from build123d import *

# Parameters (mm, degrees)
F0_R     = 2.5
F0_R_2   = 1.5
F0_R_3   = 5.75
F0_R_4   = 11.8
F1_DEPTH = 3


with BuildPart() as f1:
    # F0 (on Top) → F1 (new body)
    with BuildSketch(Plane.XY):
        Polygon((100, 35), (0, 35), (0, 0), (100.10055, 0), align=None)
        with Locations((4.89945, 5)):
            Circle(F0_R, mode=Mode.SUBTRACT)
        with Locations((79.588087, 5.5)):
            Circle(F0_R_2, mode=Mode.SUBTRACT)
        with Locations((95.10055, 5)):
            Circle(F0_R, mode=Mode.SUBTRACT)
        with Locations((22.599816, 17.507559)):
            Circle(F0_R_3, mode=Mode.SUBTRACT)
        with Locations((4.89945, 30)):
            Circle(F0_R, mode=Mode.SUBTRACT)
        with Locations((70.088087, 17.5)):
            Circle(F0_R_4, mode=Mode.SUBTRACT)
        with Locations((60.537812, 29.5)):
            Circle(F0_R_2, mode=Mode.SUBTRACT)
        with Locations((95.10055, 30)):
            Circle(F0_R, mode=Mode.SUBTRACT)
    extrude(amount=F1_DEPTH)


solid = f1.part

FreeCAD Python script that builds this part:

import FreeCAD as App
import Part
import Sketcher

V = App.Vector

doc = App.newDocument("Part")
body = doc.addObject("PartDesign::Body", "Body")

# Sketch on XY plane
sketch1 = body.newObject("Sketcher::SketchObject", "Sketch")
sketch1.AttachmentSupport = (doc.getObject("XY_Plane"), [""])
sketch1.MapMode = "FlatFace"
sketch1.addGeometry(Part.LineSegment(V(100, 35, 0), V(0, 35, 0)), False)
sketch1.addGeometry(Part.LineSegment(V(0, 35, 0), V(0, 0, 0)), False)
sketch1.addGeometry(Part.LineSegment(V(0, 0, 0), V(100.1, 0, 0)), False)
sketch1.addGeometry(Part.LineSegment(V(100.1, 0, 0), V(100, 35, 0)), False)
sketch1.addGeometry(Part.Circle(V(4.9, 5, 0), V(0, 0, 1), 2.5), False)
sketch1.addGeometry(Part.Circle(V(79.6, 5.5, 0), V(0, 0, 1), 1.5), False)
sketch1.addGeometry(Part.Circle(V(95.1, 5, 0), V(0, 0, 1), 2.5), False)
sketch1.addGeometry(Part.Circle(V(22.6, 17.5, 0), V(0, 0, 1), 5.8), False)
sketch1.addGeometry(Part.Circle(V(4.9, 30, 0), V(0, 0, 1), 2.5), False)
sketch1.addGeometry(Part.Circle(V(70.1, 17.5, 0), V(0, 0, 1), 11.8), False)
sketch1.addGeometry(Part.Circle(V(60.5, 29.5, 0), V(0, 0, 1), 1.5), False)
sketch1.addGeometry(Part.Circle(V(95.1, 30, 0), V(0, 0, 1), 2.5), False)
sketch1.addConstraint(Sketcher.Constraint("Coincident", 0, 2, 1, 1))
sketch1.addConstraint(Sketcher.Constraint("Coincident", 1, 2, 2, 1))
sketch1.addConstraint(Sketcher.Constraint("Coincident", 2, 2, 3, 1))
sketch1.addConstraint(Sketcher.Constraint("Coincident", 3, 2, 0, 1))
sketch1.addConstraint(Sketcher.Constraint("Horizontal", 0))
sketch1.addConstraint(Sketcher.Constraint("Vertical", 1))
sketch1.addConstraint(Sketcher.Constraint("Horizontal", 2))
sketch1.addConstraint(Sketcher.Constraint("Coincident", 1, 2, -1, 1))
sketch1.addConstraint(Sketcher.Constraint("Equal", 4, 6))
sketch1.addConstraint(Sketcher.Constraint("Equal", 6, 8))
sketch1.addConstraint(Sketcher.Constraint("Equal", 5, 10))
sketch1.addConstraint(Sketcher.Constraint("Equal", 8, 11))
sketch1.addConstraint(Sketcher.Constraint("Horizontal", 4, 3, 6, 3))
sketch1.addConstraint(Sketcher.Constraint("Horizontal", 8, 3, 11, 3))
sketch1.addConstraint(Sketcher.Constraint("Vertical", 4, 3, 8, 3))
sketch1.addConstraint(Sketcher.Constraint("Vertical", 6, 3, 11, 3))
sketch1.addConstraint(Sketcher.Constraint("Diameter", 4, 5.0))
sketch1.addConstraint(Sketcher.Constraint("Diameter", 5, 3.0))
sketch1.addConstraint(Sketcher.Constraint("Diameter", 7, 11.5))
sketch1.addConstraint(Sketcher.Constraint("Diameter", 9, 23.6))
sketch1.addConstraint(Sketcher.Constraint("DistanceX", 0, 2, 0, 1, 100.0))
sketch1.addConstraint(Sketcher.Constraint("DistanceY", 1, 2, 1, 1, 35.0))
sketch1.addConstraint(Sketcher.Constraint("DistanceY", -1, 1, 4, 3, 5.0))
sketch1.addConstraint(Sketcher.Constraint("DistanceY", -1, 1, 8, 3, 30.0))
sketch1.addConstraint(Sketcher.Constraint("DistanceY", 5, 3, 9, 3, 12.0))
sketch1.addConstraint(Sketcher.Constraint("DistanceY", 9, 3, 10, 3, 12.0))
sketch1.addConstraint(Sketcher.Constraint("DistanceX", 6, 3, 2, 2, 5.0))
sketch1.addConstraint(Sketcher.Constraint("DistanceY", -1, 1, 5, 3, 5.5))
sketch1.addConstraint(Sketcher.Constraint("DistanceX", 9, 3, 5, 3, 9.5))
sketch1.addConstraint(Sketcher.Constraint("DistanceX", 2, 1, 2, 2, 100.10055))
sketch1.addConstraint(Sketcher.Constraint("DistanceX", 4, 3, 6, 3, 90.2011))
sketch1.addConstraint(Sketcher.Constraint("DistanceY", -1, 1, 7, 3, 17.507559))
sketch1.addConstraint(Sketcher.Constraint("DistanceX", 7, 3, 5, 3, 56.988271))
sketch1.addConstraint(Sketcher.Constraint("DistanceX", -1, 1, 5, 3, 79.588087))
sketch1.addConstraint(Sketcher.Constraint("DistanceX", -1, 1, 10, 3, 60.537812))
pad1 = body.newObject("PartDesign::Pad", "Pad")
pad1.Profile = sketch1
pad1.Length = 3

doc.recompute()
